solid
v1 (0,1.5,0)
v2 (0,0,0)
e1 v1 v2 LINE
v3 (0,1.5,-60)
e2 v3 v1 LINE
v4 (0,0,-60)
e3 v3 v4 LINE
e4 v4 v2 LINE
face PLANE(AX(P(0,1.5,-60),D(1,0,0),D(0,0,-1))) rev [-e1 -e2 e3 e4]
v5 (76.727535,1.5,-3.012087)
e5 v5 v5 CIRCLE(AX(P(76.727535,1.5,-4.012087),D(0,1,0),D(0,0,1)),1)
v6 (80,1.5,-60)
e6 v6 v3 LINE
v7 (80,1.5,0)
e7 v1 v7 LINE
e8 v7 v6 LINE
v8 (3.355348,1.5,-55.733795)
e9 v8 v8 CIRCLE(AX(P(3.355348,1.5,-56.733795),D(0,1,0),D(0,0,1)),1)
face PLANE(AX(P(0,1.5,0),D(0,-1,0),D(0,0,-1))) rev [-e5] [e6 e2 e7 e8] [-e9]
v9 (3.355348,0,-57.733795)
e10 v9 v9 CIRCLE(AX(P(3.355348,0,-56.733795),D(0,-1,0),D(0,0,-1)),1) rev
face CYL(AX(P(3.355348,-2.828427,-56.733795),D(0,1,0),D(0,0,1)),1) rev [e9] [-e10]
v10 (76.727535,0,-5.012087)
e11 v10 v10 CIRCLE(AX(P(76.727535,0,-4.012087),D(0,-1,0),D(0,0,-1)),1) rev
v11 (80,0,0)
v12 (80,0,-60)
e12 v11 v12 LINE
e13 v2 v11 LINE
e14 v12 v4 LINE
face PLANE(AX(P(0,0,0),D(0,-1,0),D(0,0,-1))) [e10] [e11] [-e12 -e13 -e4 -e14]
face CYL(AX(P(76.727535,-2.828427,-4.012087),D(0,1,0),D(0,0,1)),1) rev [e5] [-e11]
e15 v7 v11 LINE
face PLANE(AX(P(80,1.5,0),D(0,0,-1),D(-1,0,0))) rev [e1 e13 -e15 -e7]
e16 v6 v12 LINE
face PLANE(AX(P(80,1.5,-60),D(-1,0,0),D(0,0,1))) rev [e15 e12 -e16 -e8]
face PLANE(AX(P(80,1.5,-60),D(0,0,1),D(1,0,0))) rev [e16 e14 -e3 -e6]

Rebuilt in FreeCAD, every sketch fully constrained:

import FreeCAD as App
import Part
import Sketcher

V = App.Vector

doc = App.newDocument("Part")
params = doc.addObject("Spreadsheet::Sheet", "Params")
for row, (alias, value) in enumerate([
    ("sketch1_width", "80 mm"),
    ("sketch1_height", "60 mm"),
    ("pad1_length", "1.5 mm"),
    ("sketch2_diameter", "2 mm"),
    ("pocket1_length", "1.5 mm"),
], start=1):
    params.set(f"A{row}", alias)
    params.set(f"B{row}", "=" + value)
    params.setAlias(f"B{row}", alias)

body = doc.addObject("PartDesign::Body", "Body")

sketch1 = body.newObject("Sketcher::SketchObject", "Sketch")
sketch1.AttachmentSupport = (doc.getObject("XZ_Plane"), [""])
sketch1.MapMode = "FlatFace"
sketch1.addGeometry(Part.LineSegment(V(0, -60, 0), V(0, 0, 0)), False)
sketch1.addGeometry(Part.LineSegment(V(0, 0, 0), V(80, 0, 0)), False)
sketch1.addGeometry(Part.LineSegment(V(80, 0, 0), V(80, -60, 0)), False)
sketch1.addGeometry(Part.LineSegment(V(80, -60, 0), V(0, -60, 0)), False)
sketch1.addConstraint(Sketcher.Constraint("Coincident", 0, 2, 1, 1))
sketch1.addConstraint(Sketcher.Constraint("Coincident", 1, 2, 2, 1))
sketch1.addConstraint(Sketcher.Constraint("Coincident", 2, 2, 3, 1))
sketch1.addConstraint(Sketcher.Constraint("Coincident", 3, 2, 0, 1))
sketch1.addConstraint(Sketcher.Constraint("Vertical", 0))
sketch1.addConstraint(Sketcher.Constraint("Horizontal", 1))
sketch1.addConstraint(Sketcher.Constraint("Vertical", 2))
sketch1.addConstraint(Sketcher.Constraint("Horizontal", 3))
sketch1.addConstraint(Sketcher.Constraint("Coincident", 0, 2, -1, 1))
sketch1.addConstraint(Sketcher.Constraint("DistanceX", 1, 1, 1, 2, 80.0))
sketch1.addConstraint(Sketcher.Constraint("DistanceY", 0, 1, 0, 2, 60.0))
sketch1.setExpression("Constraints[9]", "Params.sketch1_width")
sketch1.setExpression("Constraints[10]", "Params.sketch1_height")
pad1 = body.newObject("PartDesign::Pad", "Pad")
pad1.Profile = sketch1
pad1.setExpression("Length", "Params.pad1_length")
pad1.Reversed = True

sketch2 = body.newObject("Sketcher::SketchObject", "Sketch001")
sketch2.AttachmentSupport = (doc.getObject("XZ_Plane"), [""])
sketch2.MapMode = "FlatFace"
sketch2.AttachmentOffset = App.Placement(V(0, 0, -1.5), App.Rotation())
sketch2.addGeometry(Part.Circle(V(3.4, -56.7, 0), V(0, 0, 1), 1), False)
sketch2.addGeometry(Part.Circle(V(76.7, -4, 0), V(0, 0, 1), 1), False)
sketch2.addConstraint(Sketcher.Constraint("Equal", 0, 1))
sketch2.addConstraint(Sketcher.Constraint("Diameter", 0, 2.0))
sketch2.addConstraint(Sketcher.Constraint("DistanceX", -1, 1, 0, 3, 3.355348))
sketch2.addConstraint(Sketcher.Constraint("DistanceY", 0, 3, -1, 1, 56.733795))
sketch2.addConstraint(Sketcher.Constraint("DistanceX", -1, 1, 1, 3, 76.727535))
sketch2.addConstraint(Sketcher.Constraint("DistanceY", 1, 3, -1, 1, 4.012087))
sketch2.setExpression("Constraints[1]", "Params.sketch2_diameter")
pocket1 = body.newObject("PartDesign::Pocket", "Pocket")
pocket1.Profile = sketch2
pocket1.setExpression("Length", "Params.pocket1_length")
pocket1.Reversed = True

doc.recompute()
